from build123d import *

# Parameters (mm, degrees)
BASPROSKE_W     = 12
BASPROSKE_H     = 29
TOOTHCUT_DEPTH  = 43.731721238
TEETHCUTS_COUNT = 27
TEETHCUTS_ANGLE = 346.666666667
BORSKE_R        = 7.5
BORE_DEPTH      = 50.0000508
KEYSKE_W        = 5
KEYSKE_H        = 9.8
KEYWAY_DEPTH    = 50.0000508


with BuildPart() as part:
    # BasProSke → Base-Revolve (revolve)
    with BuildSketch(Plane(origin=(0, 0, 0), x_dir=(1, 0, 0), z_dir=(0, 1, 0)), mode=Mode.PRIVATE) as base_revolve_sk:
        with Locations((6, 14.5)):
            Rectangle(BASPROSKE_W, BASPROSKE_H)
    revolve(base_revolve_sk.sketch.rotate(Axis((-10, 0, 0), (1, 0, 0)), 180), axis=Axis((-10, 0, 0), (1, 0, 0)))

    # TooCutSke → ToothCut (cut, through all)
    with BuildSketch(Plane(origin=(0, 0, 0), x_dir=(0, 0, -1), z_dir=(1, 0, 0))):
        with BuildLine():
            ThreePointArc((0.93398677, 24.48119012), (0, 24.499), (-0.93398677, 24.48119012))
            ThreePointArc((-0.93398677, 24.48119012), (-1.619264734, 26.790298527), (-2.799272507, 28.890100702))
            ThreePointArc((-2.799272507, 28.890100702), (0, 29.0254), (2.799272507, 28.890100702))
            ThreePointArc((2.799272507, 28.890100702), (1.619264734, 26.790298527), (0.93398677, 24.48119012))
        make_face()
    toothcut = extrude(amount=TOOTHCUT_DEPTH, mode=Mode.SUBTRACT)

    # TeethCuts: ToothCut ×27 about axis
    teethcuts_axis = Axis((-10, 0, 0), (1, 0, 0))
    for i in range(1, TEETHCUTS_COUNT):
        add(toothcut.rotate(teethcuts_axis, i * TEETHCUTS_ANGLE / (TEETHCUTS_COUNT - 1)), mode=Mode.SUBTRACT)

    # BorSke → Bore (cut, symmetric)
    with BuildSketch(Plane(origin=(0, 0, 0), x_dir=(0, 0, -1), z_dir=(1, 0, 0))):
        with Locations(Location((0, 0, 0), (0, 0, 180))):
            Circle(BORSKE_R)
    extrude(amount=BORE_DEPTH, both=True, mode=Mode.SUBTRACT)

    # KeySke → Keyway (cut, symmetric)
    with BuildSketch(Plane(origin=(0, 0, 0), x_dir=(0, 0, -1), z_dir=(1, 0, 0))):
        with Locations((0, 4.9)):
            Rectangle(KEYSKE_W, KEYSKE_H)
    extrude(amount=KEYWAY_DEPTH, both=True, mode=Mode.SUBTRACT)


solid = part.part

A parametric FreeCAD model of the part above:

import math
import FreeCAD as App
import Part
import Sketcher
from FreeCAD import Vector
Q = App.Units.Quantity

doc = App.newDocument("Part")
body = doc.addObject("PartDesign::Body", "Body")

# Sketch on XZ plane
sketch1 = body.newObject("Sketcher::SketchObject", "Sketch")
sketch1.AttachmentSupport = (doc.getObject("XZ_Plane"), [""])
sketch1.MapMode = "FlatFace"
sketch1.addGeometry(Part.LineSegment(Vector(0, -29, 0), Vector(0, 0, 0)), False)
sketch1.addGeometry(Part.LineSegment(Vector(0, 0, 0), Vector(12, 0, 0)), False)
sketch1.addGeometry(Part.LineSegment(Vector(12, 0, 0), Vector(12, -29, 0)), False)
sketch1.addGeometry(Part.LineSegment(Vector(12, -29, 0), Vector(0, -29, 0)), False)
sketch1.addConstraint(Sketcher.Constraint("Coincident", 0, 2, 1, 1))
sketch1.addConstraint(Sketcher.Constraint("Coincident", 1, 2, 2, 1))
sketch1.addConstraint(Sketcher.Constraint("Coincident", 2, 2, 3, 1))
sketch1.addConstraint(Sketcher.Constraint("Coincident", 3, 2, 0, 1))
sketch1.addConstraint(Sketcher.Constraint("Vertical", 0))
sketch1.addConstraint(Sketcher.Constraint("Horizontal", 1))
sketch1.addConstraint(Sketcher.Constraint("Vertical", 2))
sketch1.addConstraint(Sketcher.Constraint("Horizontal", 3))
sketch1.addConstraint(Sketcher.Constraint("Coincident", 0, 2, -1, 1))
sketch1.addConstraint(Sketcher.Constraint("DistanceX", 1, 1, 1, 2, Q("12 mm")))
sketch1.addConstraint(Sketcher.Constraint("DistanceY", 0, 1, 0, 2, Q("29 mm")))
revolution = body.newObject("PartDesign::Revolution", "Revolution")
revolution.Profile = sketch1
revolution.ReferenceAxis = (sketch1, ["H_Axis"])
revolution.Angle = 360

# Sketch on YZ plane
sketch2 = body.newObject("Sketcher::SketchObject", "Sketch001")
sketch2.AttachmentSupport = (doc.getObject("YZ_Plane"), [""])
sketch2.MapMode = "FlatFace"
sketch2.addGeometry(Part.ArcOfCircle(Part.Circle(Vector(0, 0, 0), Vector(0, 0, 1), 24.5), math.radians(-2.18), math.radians(2.18)), False)
sketch2.addGeometry(Part.ArcOfCircle(Part.Circle(Vector(22.6, -11.6, 0), Vector(0, 0, 1), 10.8), math.radians(54), math.radians(80)), False)
sketch2.addGeometry(Part.ArcOfCircle(Part.Circle(Vector(0, 0, 0), Vector(0, 0, 1), 29), math.radians(-5.53), math.radians(5.53)), False)
sketch2.addGeometry(Part.ArcOfCircle(Part.Circle(Vector(22.6, 11.6, 0), Vector(0, 0, 1), 10.8), math.radians(-80), math.radians(-54)), False)
sketch2.addConstraint(Sketcher.Constraint("Coincident", 0, 1, 1, 2))
sketch2.addConstraint(Sketcher.Constraint("Coincident", 1, 1, 2, 1))
sketch2.addConstraint(Sketcher.Constraint("Coincident", 2, 2, 3, 2))
sketch2.addConstraint(Sketcher.Constraint("Coincident", 3, 1, 0, 2))
sketch2.addConstraint(Sketcher.Constraint("Coincident", 0, 3, -1, 1))
sketch2.addConstraint(Sketcher.Constraint("Coincident", 2, 3, -1, 1))
sketch2.addConstraint(Sketcher.Constraint("Equal", 1, 3))
sketch2.addConstraint(Sketcher.Constraint("Symmetric", 1, 3, 3, 3, -1))
sketch2.addConstraint(Sketcher.Constraint("Radius", 1, Q("10.8 mm")))
sketch2.addConstraint(Sketcher.Constraint("Radius", 0, Q("24.498999 mm")))
sketch2.addConstraint(Sketcher.Constraint("Radius", 2, Q("29.0254 mm")))
sketch2.addConstraint(Sketcher.Constraint("DistanceY", 1, 1, 3, 3, Q("14.365002 mm")))
sketch2.addConstraint(Sketcher.Constraint("DistanceX", -1, 1, 1, 1, Q("28.890101 mm")))
pocket1 = body.newObject("PartDesign::Pocket", "Pocket")
pocket1.Profile = sketch2
pocket1.Type = "ThroughAll"
pocket1.Reversed = True
doc.recompute()

polarpattern = body.newObject("PartDesign::PolarPattern", "PolarPattern")
polarpattern.Originals = [pocket1]
polarpattern.Axis = (doc.getObject("X_Axis"), [""])
polarpattern.Angle = 360
polarpattern.Occurrences = 27
body.Tip = polarpattern

# Sketch on YZ plane
sketch3 = body.newObject("Sketcher::SketchObject", "Sketch002")
sketch3.AttachmentSupport = (doc.getObject("YZ_Plane"), [""])
sketch3.MapMode = "FlatFace"
sketch3.addGeometry(Part.Circle(Vector(0, 0, 0), Vector(0, 0, 1), 8), False)
sketch3.addConstraint(Sketcher.Constraint("Coincident", 0, 3, -1, 1))
sketch3.addConstraint(Sketcher.Constraint("Diameter", 0, Q("15 mm")))
pocket2 = body.newObject("PartDesign::Pocket", "Pocket001")
pocket2.Profile = sketch3
pocket2.Length = 100.000102
pocket2.Midplane = True

# Sketch on YZ plane
sketch4 = body.newObject("Sketcher::SketchObject", "Sketch003")
sketch4.AttachmentSupport = (doc.getObject("YZ_Plane"), [""])
sketch4.MapMode = "FlatFace"
sketch4.addGeometry(Part.LineSegment(Vector(10, 2, 0), Vector(0, 2, 0)), False)
sketch4.addGeometry(Part.LineSegment(Vector(0, 2, 0), Vector(0, -2, 0)), False)
sketch4.addGeometry(Part.LineSegment(Vector(0, -2, 0), Vector(10, -2, 0)), False)
sketch4.addGeometry(Part.LineSegment(Vector(10, -2, 0), Vector(10, 2, 0)), False)
sketch4.addConstraint(Sketcher.Constraint("Coincident", 0, 2, 1, 1))
sketch4.addConstraint(Sketcher.Constraint("Coincident", 1, 2, 2, 1))
sketch4.addConstraint(Sketcher.Constraint("Coincident", 2, 2, 3, 1))
sketch4.addConstraint(Sketcher.Constraint("Coincident", 3, 2, 0, 1))
sketch4.addConstraint(Sketcher.Constraint("Horizontal", 0))
sketch4.addConstraint(Sketcher.Constraint("Vertical", 1))
sketch4.addConstraint(Sketcher.Constraint("Horizontal", 2))
sketch4.addConstraint(Sketcher.Constraint("Vertical", 3))
sketch4.addConstraint(Sketcher.Constraint("Symmetric", 0, 2, 1, 2, -1, 1))
sketch4.addConstraint(Sketcher.Constraint("DistanceY", 1, 2, 1, 1, Q("5 mm")))
sketch4.addConstraint(Sketcher.Constraint("DistanceX", 0, 2, 0, 1, Q("9.8 mm")))
pocket3 = body.newObject("PartDesign::Pocket", "Pocket002")
pocket3.Profile = sketch4
pocket3.Length = 100.000102
pocket3.Midplane = True

doc.recompute()
